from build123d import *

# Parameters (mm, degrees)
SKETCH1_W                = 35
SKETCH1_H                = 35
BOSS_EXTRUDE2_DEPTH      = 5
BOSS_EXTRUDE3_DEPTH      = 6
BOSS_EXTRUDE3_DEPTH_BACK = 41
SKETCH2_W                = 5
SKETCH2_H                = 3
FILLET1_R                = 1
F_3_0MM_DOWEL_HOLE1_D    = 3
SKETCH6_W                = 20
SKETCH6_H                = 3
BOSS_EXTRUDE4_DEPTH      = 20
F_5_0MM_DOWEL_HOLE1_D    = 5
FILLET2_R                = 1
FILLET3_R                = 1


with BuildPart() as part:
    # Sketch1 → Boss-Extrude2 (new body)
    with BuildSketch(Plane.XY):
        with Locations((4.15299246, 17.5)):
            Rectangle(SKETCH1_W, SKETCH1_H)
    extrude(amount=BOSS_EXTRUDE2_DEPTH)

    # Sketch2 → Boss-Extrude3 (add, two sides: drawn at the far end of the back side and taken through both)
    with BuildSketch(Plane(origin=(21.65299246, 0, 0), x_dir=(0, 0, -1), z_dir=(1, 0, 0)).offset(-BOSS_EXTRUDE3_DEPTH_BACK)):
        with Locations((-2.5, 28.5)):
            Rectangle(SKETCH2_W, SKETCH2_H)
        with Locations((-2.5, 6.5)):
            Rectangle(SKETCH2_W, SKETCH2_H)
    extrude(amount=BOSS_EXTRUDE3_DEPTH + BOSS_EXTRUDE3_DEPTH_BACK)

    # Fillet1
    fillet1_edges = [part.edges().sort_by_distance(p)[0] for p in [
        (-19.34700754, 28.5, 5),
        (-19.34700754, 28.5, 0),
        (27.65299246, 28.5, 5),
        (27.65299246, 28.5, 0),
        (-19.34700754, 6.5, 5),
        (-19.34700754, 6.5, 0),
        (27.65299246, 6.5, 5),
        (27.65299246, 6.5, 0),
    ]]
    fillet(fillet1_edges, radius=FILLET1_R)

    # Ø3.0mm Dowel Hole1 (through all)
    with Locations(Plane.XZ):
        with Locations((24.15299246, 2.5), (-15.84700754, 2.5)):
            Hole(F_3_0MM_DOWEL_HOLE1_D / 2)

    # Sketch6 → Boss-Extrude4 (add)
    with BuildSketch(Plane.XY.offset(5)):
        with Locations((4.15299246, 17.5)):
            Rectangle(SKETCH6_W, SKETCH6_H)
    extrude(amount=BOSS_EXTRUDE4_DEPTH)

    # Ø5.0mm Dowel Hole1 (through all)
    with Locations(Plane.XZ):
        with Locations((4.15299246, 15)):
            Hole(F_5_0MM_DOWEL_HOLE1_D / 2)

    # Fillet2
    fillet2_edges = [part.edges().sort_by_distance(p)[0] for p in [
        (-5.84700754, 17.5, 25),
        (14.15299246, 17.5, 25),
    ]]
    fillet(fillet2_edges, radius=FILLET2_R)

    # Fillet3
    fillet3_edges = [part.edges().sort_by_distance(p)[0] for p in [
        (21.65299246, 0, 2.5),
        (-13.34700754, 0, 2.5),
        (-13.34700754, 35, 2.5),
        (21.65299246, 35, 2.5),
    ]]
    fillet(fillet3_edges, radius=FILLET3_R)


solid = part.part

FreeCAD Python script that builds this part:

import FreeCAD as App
import Part
import Sketcher
from FreeCAD import Vector
Q = App.Units.Quantity


def edges_at(feature, points):
    """Names of the edges that pass closest to the given points."""
    edges = feature.Shape.Edges
    near = lambda p: min(range(len(edges)), key=lambda i: edges[i].distToShape(Part.Vertex(*p))[0])
    return sorted({f"Edge{near(p) + 1}" for p in points})

doc = App.newDocument("Part")
body = doc.addObject("PartDesign::Body", "Body")

sketch1 = body.newObject("Sketcher::SketchObject", "Sketch")
sketch1.AttachmentSupport = (doc.getObject("XY_Plane"), [""])
sketch1.MapMode = "FlatFace"
sketch1.addGeometry(Part.LineSegment(Vector(-13, 35, 0), Vector(-13, 0, 0)), False)
sketch1.addGeometry(Part.LineSegment(Vector(-13, 0, 0), Vector(22, 0, 0)), False)
sketch1.addGeometry(Part.LineSegment(Vector(22, 0, 0), Vector(22, 35, 0)), False)
sketch1.addGeometry(Part.LineSegment(Vector(22, 35, 0), Vector(-13, 35, 0)), False)
sketch1.addConstraint(Sketcher.Constraint("Coincident", 0, 2, 1, 1))
sketch1.addConstraint(Sketcher.Constraint("Coincident", 1, 2, 2, 1))
sketch1.addConstraint(Sketcher.Constraint("Coincident", 2, 2, 3, 1))
sketch1.addConstraint(Sketcher.Constraint("Coincident", 3, 2, 0, 1))
sketch1.addConstraint(Sketcher.Constraint("Vertical", 0))
sketch1.addConstraint(Sketcher.Constraint("Horizontal", 1))
sketch1.addConstraint(Sketcher.Constraint("Vertical", 2))
sketch1.addConstraint(Sketcher.Constraint("Horizontal", 3))
sketch1.addConstraint(Sketcher.Constraint("PointOnObject", 0, 2, -1))
sketch1.addConstraint(Sketcher.Constraint("Equal", 3, 0))
sketch1.addConstraint(Sketcher.Constraint("DistanceX", 1, 1, 1, 2, Q("35 mm")))
sketch1.addConstraint(Sketcher.Constraint("DistanceX", 0, 2, -1, 1, Q("13.347008 mm")))
pad1 = body.newObject("PartDesign::Pad", "Pad")
pad1.Profile = sketch1
pad1.Length = 5

sketch2 = body.newObject("Sketcher::SketchObject", "Sketch001")
sketch2.AttachmentSupport = (doc.getObject("YZ_Plane"), [""])
sketch2.MapMode = "FlatFace"
sketch2.AttachmentOffset = App.Placement(Vector(0, 0, 21.652992), App.Rotation())
sketch2.addGeometry(Part.LineSegment(Vector(30, 5, 0), Vector(27, 5, 0)), False)
sketch2.addGeometry(Part.LineSegment(Vector(27, 5, 0), Vector(27, 0, 0)), False)
sketch2.addGeometry(Part.LineSegment(Vector(27, 0, 0), Vector(30, 0, 0)), False)
sketch2.addGeometry(Part.LineSegment(Vector(30, 0, 0), Vector(30, 5, 0)), False)
sketch2.addGeometry(Part.LineSegment(Vector(8, 5, 0), Vector(5, 5, 0)), False)
sketch2.addGeometry(Part.LineSegment(Vector(5, 5, 0), Vector(5, 0, 0)), False)
sketch2.addGeometry(Part.LineSegment(Vector(5, 0, 0), Vector(8, 0, 0)), False)
sketch2.addGeometry(Part.LineSegment(Vector(8, 0, 0), Vector(8, 5, 0)), False)
sketch2.addConstraint(Sketcher.Constraint("Coincident", 0, 2, 1, 1))
sketch2.addConstraint(Sketcher.Constraint("Coincident", 1, 2, 2, 1))
sketch2.addConstraint(Sketcher.Constraint("Coincident", 2, 2, 3, 1))
sketch2.addConstraint(Sketcher.Constraint("Coincident", 3, 2, 0, 1))
sketch2.addConstraint(Sketcher.Constraint("Coincident", 4, 2, 5, 1))
sketch2.addConstraint(Sketcher.Constraint("Coincident", 5, 2, 6, 1))
sketch2.addConstraint(Sketcher.Constraint("Coincident", 6, 2, 7, 1))
sketch2.addConstraint(Sketcher.Constraint("Coincident", 7, 2, 4, 1))
sketch2.addConstraint(Sketcher.Constraint("Horizontal", 0))
sketch2.addConstraint(Sketcher.Constraint("Vertical", 1))
sketch2.addConstraint(Sketcher.Constraint("Horizontal", 2))
sketch2.addConstraint(Sketcher.Constraint("Vertical", 3))
sketch2.addConstraint(Sketcher.Constraint("Horizontal", 4))
sketch2.addConstraint(Sketcher.Constraint("Vertical", 5))
sketch2.addConstraint(Sketcher.Constraint("Horizontal", 6))
sketch2.addConstraint(Sketcher.Constraint("Vertical", 7))
sketch2.addConstraint(Sketcher.Constraint("PointOnObject", 1, 2, -1))
sketch2.addConstraint(Sketcher.Constraint("PointOnObject", 5, 2, -1))
sketch2.addConstraint(Sketcher.Constraint("Horizontal", 3, 2, 4, 2))
sketch2.addConstraint(Sketcher.Constraint("Equal", 2, 4))
sketch2.addConstraint(Sketcher.Constraint("DistanceX", 0, 2, 0, 1, Q("3 mm")))
sketch2.addConstraint(Sketcher.Constraint("DistanceY", 1, 2, 1, 1, Q("5 mm")))
sketch2.addConstraint(Sketcher.Constraint("DistanceX", -1, 1, 0, 2, Q("27 mm")))
sketch2.addConstraint(Sketcher.Constraint("DistanceX", -1, 1, 4, 2, Q("5 mm")))
pad2 = body.newObject("PartDesign::Pad", "Pad001")
pad2.Profile = sketch2
pad2.Type = "TwoLengths"
pad2.Length = 6
pad2.Length2 = 41
doc.recompute()

fillet = body.newObject("PartDesign::Fillet", "Fillet")
fillet.Base = (pad2, edges_at(pad2, [
    (-19.347, 28.5, 5),
    (-19.347, 28.5, 0),
    (27.653, 28.5, 5),
    (27.653, 28.5, 0),
    (-19.347, 6.5, 5),
    (-19.347, 6.5, 0),
    (27.653, 6.5, 5),
    (27.653, 6.5, 0),
]))
fillet.Radius = 1

sketch3 = body.newObject("Sketcher::SketchObject", "Sketch002")
sketch3.AttachmentSupport = (doc.getObject("XZ_Plane"), [""])
sketch3.MapMode = "FlatFace"
sketch3.addGeometry(Part.Circle(Vector(24.2, 2.5, 0), Vector(0, 0, 1), 1.5), False)
sketch3.addGeometry(Part.Circle(Vector(-15.8, 2.5, 0), Vector(0, 0, 1), 1.5), False)
sketch3.addConstraint(Sketcher.Constraint("Equal", 0, 1))
sketch3.addConstraint(Sketcher.Constraint("Horizontal", 0, 3, 1, 3))
sketch3.addConstraint(Sketcher.Constraint("Diameter", 0, Q("3 mm")))
sketch3.addConstraint(Sketcher.Constraint("DistanceX", 1, 3, 0, 3, Q("40 mm")))
sketch3.addConstraint(Sketcher.Constraint("DistanceY", -1, 1, 0, 3, Q("2.5 mm")))
sketch3.addConstraint(Sketcher.Constraint("DistanceX", -1, 1, 0, 3, Q("24.152992 mm")))
doc.recompute()
hole = body.newObject("PartDesign::Hole", "Hole")
hole.Profile = sketch3
hole.ThreadType = "None"
hole.Diameter = 3
hole.DepthType = "ThroughAll"

sketch4 = body.newObject("Sketcher::SketchObject", "Sketch003")
sketch4.AttachmentSupport = (doc.getObject("XY_Plane"), [""])
sketch4.MapMode = "FlatFace"
sketch4.AttachmentOffset = App.Placement(Vector(0, 0, 5), App.Rotation())
sketch4.addGeometry(Part.LineSegment(Vector(-5.8, 19, 0), Vector(-5.8, 16, 0)), False)
sketch4.addGeometry(Part.LineSegment(Vector(-5.8, 16, 0), Vector(14.2, 16, 0)), False)
sketch4.addGeometry(Part.LineSegment(Vector(14.2, 16, 0), Vector(14.2, 19, 0)), False)
sketch4.addGeometry(Part.LineSegment(Vector(14.2, 19, 0), Vector(-5.8, 19, 0)), False)
sketch4.addConstraint(Sketcher.Constraint("Coincident", 0, 2, 1, 1))
sketch4.addConstraint(Sketcher.Constraint("Coincident", 1, 2, 2, 1))
sketch4.addConstraint(Sketcher.Constraint("Coincident", 2, 2, 3, 1))
sketch4.addConstraint(Sketcher.Constraint("Coincident", 3, 2, 0, 1))
sketch4.addConstraint(Sketcher.Constraint("Vertical", 0))
sketch4.addConstraint(Sketcher.Constraint("Horizontal", 1))
sketch4.addConstraint(Sketcher.Constraint("Vertical", 2))
sketch4.addConstraint(Sketcher.Constraint("Horizontal", 3))
sketch4.addConstraint(Sketcher.Constraint("DistanceX", 1, 1, 1, 2, Q("20 mm")))
sketch4.addConstraint(Sketcher.Constraint("DistanceY", 0, 2, 0, 1, Q("3 mm")))
sketch4.addConstraint(Sketcher.Constraint("DistanceY", -1, 1, 0, 2, Q("16 mm")))
sketch4.addConstraint(Sketcher.Constraint("DistanceX", 0, 2, -1, 1, Q("5.847008 mm")))
pad3 = body.newObject("PartDesign::Pad", "Pad002")
pad3.Profile = sketch4
pad3.Length = 20

sketch5 = body.newObject("Sketcher::SketchObject", "Sketch004")
sketch5.AttachmentSupport = (doc.getObject("XZ_Plane"), [""])
sketch5.MapMode = "FlatFace"
sketch5.addGeometry(Part.Circle(Vector(4.2, 15, 0), Vector(0, 0, 1), 2.5), False)
sketch5.addConstraint(Sketcher.Constraint("Diameter", 0, Q("5 mm")))
sketch5.addConstraint(Sketcher.Constraint("DistanceY", -1, 1, 0, 3, Q("15 mm")))
sketch5.addConstraint(Sketcher.Constraint("DistanceX", -1, 1, 0, 3, Q("4.152992 mm")))
doc.recompute()
hole2 = body.newObject("PartDesign::Hole", "Hole001")
hole2.Profile = sketch5
hole2.ThreadType = "None"
hole2.Diameter = 5
hole2.DepthType = "ThroughAll"
doc.recompute()

fillet2 = body.newObject("PartDesign::Fillet", "Fillet001")
fillet2.Base = (hole2, edges_at(hole2, [(-5.847, 17.5, 25), (14.153, 17.5, 25)]))
fillet2.Radius = 1
doc.recompute()

fillet3 = body.newObject("PartDesign::Fillet", "Fillet002")
fillet3.Base = (fillet2, edges_at(fillet2, [
    (21.653, 0, 2.5),
    (-13.347, 0, 2.5),
    (-13.347, 35, 2.5),
    (21.653, 35, 2.5),
]))
fillet3.Radius = 1

doc.recompute()
